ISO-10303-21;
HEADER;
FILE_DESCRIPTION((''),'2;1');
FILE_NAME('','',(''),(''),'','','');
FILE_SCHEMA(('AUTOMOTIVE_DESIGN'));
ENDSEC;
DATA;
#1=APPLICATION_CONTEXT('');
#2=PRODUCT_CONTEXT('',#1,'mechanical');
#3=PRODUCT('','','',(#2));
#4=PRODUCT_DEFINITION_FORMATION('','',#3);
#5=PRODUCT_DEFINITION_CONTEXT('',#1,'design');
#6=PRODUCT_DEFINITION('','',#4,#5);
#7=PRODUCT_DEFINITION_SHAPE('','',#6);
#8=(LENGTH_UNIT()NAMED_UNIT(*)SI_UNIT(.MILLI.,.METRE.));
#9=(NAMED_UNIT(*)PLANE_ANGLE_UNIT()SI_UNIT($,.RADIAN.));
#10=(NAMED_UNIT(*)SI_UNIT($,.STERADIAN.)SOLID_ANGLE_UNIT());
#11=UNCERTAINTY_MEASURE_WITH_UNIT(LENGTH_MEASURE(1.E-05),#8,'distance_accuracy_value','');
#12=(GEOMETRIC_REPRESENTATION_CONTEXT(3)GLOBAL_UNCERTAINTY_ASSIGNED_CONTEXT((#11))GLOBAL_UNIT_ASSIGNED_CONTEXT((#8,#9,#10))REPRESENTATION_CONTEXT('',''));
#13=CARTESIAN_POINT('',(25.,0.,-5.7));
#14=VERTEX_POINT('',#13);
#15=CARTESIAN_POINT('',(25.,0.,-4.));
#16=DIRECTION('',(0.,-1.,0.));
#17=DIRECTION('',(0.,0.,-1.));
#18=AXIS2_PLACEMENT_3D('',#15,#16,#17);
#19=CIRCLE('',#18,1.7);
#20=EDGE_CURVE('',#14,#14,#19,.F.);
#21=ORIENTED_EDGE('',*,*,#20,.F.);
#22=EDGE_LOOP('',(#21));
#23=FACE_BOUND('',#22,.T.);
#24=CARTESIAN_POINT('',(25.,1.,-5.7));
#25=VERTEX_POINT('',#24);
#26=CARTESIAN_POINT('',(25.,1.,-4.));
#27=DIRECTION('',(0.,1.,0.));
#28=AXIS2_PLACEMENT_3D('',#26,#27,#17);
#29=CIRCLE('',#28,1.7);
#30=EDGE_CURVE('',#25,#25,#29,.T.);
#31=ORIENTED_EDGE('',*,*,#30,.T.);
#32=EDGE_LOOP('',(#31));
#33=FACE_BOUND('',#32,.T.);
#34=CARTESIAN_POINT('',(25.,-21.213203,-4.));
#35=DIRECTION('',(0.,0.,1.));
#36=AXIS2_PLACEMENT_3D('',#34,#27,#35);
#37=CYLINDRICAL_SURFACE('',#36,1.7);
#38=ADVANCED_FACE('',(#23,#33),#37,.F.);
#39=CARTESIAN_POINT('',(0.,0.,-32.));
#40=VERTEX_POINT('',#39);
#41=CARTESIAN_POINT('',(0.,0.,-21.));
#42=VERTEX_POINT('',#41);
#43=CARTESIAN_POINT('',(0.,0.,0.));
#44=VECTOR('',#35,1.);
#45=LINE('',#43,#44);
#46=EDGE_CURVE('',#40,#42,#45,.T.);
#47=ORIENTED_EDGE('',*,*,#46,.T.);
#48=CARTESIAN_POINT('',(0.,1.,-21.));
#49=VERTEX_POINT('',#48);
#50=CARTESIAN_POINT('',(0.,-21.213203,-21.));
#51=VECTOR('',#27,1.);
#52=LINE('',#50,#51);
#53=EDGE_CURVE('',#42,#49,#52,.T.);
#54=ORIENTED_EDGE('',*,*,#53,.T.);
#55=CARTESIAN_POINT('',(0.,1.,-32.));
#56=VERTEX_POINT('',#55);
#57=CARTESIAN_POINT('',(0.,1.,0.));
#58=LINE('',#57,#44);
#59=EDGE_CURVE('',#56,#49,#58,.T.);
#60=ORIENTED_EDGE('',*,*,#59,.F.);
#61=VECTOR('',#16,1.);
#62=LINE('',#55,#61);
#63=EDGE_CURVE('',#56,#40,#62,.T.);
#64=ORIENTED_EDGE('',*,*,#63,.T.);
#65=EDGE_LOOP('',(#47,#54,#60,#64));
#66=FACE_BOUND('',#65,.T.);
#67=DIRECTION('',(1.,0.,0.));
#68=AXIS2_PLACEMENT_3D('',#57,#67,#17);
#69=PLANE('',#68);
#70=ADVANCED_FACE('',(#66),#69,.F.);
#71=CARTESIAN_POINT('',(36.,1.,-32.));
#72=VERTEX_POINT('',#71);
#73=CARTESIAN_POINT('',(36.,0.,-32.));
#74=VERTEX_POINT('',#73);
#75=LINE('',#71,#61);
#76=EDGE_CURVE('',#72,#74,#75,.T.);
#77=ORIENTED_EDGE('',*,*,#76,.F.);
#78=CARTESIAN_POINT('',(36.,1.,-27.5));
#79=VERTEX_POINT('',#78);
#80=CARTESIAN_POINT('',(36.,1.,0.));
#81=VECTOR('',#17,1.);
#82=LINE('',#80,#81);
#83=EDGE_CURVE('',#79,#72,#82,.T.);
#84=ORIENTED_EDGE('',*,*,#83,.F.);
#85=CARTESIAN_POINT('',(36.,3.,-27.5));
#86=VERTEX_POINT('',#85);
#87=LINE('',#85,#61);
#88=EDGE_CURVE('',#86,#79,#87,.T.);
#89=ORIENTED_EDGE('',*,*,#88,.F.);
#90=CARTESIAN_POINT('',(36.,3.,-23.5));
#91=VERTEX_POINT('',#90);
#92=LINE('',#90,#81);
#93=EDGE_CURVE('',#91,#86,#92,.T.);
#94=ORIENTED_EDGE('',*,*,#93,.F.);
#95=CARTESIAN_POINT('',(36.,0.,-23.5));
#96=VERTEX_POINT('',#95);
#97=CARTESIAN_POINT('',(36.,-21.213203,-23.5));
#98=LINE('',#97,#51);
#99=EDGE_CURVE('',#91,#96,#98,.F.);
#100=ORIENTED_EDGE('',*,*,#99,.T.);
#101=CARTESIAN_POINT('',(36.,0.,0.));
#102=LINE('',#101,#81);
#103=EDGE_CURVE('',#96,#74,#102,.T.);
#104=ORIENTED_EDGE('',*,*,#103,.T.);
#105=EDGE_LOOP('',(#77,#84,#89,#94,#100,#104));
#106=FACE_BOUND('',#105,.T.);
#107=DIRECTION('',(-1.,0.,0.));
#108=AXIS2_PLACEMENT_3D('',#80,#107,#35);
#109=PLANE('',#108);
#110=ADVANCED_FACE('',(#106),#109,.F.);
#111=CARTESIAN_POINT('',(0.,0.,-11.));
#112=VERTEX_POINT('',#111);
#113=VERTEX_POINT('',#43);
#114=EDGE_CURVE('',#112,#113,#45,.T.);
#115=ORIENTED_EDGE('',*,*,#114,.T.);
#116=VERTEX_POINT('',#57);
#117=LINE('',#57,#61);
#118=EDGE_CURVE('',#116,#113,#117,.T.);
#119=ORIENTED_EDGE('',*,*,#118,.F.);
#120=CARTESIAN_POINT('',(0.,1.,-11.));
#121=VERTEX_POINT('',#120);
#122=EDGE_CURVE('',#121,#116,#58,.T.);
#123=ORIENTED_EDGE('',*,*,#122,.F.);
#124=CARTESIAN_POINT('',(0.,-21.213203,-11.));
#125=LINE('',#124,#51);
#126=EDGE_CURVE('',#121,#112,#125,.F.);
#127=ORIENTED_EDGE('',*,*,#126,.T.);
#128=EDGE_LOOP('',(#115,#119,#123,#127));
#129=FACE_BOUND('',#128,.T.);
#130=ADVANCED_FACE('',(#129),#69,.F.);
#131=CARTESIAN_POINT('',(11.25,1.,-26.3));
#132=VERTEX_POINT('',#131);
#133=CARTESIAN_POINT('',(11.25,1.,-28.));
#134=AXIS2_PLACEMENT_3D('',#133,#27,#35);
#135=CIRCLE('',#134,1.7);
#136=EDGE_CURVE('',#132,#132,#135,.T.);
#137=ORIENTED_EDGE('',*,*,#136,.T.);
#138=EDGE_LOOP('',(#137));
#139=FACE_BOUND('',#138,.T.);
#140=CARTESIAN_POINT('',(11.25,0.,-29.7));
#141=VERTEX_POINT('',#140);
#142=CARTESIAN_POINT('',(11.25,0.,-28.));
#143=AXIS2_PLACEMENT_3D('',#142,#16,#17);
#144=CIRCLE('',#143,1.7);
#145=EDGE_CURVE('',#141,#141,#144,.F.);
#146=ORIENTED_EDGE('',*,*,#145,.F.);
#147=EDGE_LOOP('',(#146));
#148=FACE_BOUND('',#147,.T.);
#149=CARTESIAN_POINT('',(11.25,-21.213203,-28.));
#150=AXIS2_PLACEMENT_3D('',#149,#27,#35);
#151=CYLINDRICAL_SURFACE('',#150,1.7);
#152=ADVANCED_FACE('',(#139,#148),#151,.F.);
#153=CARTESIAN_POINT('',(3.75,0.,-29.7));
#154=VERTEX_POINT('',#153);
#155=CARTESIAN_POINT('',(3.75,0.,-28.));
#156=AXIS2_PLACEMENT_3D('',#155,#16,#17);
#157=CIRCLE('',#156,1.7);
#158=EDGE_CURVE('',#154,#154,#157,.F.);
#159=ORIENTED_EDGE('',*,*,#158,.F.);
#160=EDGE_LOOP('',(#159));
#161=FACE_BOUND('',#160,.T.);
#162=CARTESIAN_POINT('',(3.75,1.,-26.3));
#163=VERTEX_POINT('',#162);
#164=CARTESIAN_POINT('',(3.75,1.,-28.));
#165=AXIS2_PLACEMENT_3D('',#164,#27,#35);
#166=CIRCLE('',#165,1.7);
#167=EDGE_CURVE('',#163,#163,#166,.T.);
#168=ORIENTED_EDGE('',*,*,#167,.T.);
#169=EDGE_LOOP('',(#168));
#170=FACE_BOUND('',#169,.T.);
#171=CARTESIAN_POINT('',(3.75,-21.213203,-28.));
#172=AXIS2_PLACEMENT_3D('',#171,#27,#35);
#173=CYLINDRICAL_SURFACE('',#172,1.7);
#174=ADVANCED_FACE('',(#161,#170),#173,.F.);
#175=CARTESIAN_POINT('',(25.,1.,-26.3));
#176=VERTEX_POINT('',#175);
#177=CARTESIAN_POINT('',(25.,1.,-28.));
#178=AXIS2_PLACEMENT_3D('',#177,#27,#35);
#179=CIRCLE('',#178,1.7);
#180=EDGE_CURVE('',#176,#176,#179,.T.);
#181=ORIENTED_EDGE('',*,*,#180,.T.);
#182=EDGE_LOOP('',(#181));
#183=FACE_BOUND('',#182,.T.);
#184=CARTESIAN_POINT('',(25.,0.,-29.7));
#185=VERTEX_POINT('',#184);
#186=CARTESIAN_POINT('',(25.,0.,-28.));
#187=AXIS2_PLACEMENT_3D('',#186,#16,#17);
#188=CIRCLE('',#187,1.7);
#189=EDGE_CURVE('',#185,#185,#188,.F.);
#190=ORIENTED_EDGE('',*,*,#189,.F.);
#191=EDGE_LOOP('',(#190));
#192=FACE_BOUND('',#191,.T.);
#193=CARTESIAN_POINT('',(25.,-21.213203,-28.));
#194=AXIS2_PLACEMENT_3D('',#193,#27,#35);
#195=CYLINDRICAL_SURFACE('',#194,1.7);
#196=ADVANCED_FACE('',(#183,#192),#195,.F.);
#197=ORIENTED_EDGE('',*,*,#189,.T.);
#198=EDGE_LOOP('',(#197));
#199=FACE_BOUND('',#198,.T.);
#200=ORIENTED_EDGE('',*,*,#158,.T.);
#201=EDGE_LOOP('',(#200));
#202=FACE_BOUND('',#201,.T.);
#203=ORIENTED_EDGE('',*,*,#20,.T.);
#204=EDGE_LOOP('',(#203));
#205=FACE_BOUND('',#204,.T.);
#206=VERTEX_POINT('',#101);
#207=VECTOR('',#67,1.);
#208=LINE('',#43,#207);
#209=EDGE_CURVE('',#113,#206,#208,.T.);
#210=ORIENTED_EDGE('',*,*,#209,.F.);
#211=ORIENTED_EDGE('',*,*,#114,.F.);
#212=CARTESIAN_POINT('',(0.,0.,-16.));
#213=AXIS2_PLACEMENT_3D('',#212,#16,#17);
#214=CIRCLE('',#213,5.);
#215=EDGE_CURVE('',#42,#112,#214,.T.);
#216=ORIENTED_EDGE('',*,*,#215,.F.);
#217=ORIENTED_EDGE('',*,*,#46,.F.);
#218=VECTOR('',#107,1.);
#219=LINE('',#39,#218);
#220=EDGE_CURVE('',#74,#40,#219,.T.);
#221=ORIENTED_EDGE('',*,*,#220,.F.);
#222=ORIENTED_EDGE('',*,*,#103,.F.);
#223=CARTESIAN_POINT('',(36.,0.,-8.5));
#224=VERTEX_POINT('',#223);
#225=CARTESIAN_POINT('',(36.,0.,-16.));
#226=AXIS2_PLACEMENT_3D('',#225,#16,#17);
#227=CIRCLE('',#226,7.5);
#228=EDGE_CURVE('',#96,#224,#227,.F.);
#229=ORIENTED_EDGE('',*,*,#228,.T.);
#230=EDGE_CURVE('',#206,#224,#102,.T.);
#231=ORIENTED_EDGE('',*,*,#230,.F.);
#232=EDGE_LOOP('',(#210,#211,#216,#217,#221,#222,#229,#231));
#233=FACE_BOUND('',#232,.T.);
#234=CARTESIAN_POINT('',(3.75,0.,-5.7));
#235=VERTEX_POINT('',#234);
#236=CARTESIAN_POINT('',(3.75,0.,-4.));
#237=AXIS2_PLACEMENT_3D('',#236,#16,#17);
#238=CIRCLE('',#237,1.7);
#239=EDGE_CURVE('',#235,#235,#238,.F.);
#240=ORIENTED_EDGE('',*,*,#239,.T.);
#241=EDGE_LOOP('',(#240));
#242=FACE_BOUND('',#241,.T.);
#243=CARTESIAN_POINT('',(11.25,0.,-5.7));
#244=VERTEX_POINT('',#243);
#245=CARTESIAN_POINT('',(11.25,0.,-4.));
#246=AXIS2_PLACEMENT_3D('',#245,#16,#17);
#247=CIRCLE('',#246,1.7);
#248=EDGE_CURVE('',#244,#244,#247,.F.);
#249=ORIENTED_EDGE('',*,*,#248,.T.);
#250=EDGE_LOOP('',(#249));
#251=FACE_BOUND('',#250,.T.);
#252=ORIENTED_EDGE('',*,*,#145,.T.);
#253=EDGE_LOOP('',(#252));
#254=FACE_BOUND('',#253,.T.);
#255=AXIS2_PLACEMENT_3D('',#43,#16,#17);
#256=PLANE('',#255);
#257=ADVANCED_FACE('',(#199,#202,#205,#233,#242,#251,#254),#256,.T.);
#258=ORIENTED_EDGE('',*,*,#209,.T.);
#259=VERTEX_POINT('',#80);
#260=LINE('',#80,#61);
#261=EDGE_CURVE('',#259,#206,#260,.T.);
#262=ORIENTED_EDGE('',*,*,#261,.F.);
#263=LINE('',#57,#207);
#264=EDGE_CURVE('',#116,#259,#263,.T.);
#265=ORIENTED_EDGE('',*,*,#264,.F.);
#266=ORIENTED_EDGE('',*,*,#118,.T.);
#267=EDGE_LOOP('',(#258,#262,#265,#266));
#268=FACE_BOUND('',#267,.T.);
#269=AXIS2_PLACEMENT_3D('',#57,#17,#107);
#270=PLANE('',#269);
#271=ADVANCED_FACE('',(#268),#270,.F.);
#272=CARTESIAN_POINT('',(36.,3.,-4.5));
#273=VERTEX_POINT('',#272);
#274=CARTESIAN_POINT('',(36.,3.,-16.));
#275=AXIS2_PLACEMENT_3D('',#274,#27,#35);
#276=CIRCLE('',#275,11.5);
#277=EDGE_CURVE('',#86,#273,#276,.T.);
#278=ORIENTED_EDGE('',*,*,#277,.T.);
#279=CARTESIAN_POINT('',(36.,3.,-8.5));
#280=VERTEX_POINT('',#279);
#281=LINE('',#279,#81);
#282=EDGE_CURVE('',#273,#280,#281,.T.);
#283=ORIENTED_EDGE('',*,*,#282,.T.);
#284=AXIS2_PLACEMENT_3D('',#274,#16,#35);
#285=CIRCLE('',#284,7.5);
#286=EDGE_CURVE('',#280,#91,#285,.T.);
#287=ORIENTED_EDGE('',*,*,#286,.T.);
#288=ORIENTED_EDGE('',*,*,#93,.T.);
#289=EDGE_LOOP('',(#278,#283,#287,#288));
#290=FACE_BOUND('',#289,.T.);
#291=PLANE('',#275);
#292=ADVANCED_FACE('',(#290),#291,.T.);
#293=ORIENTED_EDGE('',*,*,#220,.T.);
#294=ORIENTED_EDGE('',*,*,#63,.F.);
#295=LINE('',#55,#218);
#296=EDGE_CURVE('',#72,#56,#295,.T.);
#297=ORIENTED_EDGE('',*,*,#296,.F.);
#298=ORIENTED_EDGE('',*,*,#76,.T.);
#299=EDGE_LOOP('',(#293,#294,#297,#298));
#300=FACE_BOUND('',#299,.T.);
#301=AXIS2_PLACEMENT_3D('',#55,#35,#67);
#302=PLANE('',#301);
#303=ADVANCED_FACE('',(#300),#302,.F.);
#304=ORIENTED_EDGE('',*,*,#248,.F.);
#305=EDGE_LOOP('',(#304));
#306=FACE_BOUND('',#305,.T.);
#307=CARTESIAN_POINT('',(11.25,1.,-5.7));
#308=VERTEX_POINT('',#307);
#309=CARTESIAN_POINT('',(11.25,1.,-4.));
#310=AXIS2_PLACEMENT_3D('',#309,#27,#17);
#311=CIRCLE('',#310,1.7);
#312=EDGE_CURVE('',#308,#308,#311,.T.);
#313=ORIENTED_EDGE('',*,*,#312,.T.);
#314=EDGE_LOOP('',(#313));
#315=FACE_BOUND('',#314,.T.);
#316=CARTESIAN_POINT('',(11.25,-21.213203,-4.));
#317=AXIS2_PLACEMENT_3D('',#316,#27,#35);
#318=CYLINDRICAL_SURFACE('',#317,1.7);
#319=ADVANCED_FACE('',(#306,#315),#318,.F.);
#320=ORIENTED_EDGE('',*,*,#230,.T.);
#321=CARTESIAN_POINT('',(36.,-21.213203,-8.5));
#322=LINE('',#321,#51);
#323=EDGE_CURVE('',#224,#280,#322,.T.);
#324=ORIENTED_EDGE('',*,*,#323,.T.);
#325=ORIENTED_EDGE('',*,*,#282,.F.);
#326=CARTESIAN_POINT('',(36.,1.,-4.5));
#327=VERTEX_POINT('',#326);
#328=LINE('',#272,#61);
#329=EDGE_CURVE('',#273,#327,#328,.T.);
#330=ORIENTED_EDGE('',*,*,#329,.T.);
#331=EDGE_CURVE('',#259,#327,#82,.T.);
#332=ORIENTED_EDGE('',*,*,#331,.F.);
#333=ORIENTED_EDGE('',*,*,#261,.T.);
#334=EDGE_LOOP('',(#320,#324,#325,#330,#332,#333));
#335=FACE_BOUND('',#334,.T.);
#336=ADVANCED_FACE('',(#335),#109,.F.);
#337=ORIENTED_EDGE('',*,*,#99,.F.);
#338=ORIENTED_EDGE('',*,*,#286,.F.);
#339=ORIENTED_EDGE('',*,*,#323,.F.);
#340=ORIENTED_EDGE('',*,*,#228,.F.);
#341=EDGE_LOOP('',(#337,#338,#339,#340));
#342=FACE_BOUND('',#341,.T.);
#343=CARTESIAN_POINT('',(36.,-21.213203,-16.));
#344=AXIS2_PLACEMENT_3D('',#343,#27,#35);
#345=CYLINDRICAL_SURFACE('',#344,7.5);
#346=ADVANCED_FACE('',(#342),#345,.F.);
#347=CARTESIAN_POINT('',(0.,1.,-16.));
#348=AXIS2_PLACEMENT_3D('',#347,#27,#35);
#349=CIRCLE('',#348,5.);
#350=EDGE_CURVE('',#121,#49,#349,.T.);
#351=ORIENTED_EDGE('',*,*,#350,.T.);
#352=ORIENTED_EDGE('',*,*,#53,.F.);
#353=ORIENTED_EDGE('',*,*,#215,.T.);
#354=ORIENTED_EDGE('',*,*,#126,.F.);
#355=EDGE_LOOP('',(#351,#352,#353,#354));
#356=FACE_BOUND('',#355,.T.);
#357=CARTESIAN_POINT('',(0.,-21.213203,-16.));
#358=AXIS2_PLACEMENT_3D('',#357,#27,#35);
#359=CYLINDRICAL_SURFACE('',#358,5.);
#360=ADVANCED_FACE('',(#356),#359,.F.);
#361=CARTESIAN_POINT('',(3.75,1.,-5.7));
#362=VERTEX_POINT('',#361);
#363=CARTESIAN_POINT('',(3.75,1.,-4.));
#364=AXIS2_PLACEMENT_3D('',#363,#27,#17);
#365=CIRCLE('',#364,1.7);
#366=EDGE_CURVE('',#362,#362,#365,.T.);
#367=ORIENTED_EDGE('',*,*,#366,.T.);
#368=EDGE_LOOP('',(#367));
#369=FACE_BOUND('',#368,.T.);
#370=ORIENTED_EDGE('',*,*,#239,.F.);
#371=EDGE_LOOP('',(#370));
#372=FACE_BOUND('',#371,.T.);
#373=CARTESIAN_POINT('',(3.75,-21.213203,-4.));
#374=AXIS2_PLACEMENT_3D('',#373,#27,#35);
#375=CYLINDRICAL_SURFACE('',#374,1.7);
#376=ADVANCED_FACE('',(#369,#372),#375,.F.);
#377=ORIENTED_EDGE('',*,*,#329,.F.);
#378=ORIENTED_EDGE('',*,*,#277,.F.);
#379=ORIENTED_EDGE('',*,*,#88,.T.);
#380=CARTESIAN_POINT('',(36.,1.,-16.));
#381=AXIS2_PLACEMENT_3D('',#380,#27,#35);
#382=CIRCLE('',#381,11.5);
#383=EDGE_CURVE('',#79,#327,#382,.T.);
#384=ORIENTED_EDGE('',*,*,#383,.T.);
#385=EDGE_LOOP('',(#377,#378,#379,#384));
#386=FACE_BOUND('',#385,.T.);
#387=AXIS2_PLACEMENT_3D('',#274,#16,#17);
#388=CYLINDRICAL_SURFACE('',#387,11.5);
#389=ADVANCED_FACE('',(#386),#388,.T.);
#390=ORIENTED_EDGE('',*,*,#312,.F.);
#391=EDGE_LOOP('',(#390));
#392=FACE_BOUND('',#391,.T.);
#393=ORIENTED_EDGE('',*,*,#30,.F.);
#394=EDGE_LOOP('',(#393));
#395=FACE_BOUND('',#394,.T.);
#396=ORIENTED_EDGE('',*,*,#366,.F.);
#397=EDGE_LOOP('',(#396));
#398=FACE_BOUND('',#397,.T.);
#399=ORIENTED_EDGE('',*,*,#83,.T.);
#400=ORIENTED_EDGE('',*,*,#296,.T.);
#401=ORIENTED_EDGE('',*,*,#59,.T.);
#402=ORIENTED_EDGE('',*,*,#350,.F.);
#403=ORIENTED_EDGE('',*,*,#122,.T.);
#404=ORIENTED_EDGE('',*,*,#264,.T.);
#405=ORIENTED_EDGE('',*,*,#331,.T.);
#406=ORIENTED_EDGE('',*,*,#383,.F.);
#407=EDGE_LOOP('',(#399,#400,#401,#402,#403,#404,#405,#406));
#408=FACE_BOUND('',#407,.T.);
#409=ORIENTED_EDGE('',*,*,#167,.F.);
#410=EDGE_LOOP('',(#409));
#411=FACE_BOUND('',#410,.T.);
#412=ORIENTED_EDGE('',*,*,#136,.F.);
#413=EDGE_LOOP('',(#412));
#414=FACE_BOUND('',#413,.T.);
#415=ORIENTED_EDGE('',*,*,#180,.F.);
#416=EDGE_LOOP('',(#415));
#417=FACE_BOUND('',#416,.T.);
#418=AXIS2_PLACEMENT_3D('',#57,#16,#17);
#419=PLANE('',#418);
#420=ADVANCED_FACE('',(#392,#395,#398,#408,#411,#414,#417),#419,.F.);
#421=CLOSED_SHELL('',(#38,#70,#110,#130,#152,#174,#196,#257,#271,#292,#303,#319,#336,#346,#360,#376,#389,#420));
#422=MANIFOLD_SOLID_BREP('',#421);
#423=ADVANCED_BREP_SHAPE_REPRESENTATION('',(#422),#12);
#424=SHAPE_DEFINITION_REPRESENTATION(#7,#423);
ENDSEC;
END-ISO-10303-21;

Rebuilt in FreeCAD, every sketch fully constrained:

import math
import FreeCAD as App
import Part
import Sketcher


def add_polygon(sketch, points):
    """Adds a closed chain of lines whose ends are joined by coincident constraints."""
    first, n = sketch.GeometryCount, len(points)
    for a, b in zip(points, points[1:] + points[:1]):
        sketch.addGeometry(Part.LineSegment(App.Vector(*a, 0), App.Vector(*b, 0)), False)
    for i in range(n):
        sketch.addConstraint(Sketcher.Constraint("Coincident", first + i, 2, first + (i + 1) % n, 1))

doc = App.newDocument("Part")
body = doc.addObject("PartDesign::Body", "Body")

# Sketch on XZ plane
sketch1 = body.newObject("Sketcher::SketchObject", "Sketch")
sketch1.AttachmentSupport = (doc.getObject("XZ_Plane"), [""])
sketch1.MapMode = "FlatFace"
add_polygon(sketch1, [(0, -32), (0, 0), (36, 0), (36, -32)])  # lines 0-3
sketch1.addConstraint([
    Sketcher.Constraint("Vertical", 0),
    Sketcher.Constraint("Horizontal", 1),
    Sketcher.Constraint("Vertical", 2),
    Sketcher.Constraint("Horizontal", 3),
    Sketcher.Constraint("Coincident", 0, 2, -1, 1),
    Sketcher.Constraint("DistanceX", 1, 1, 1, 2, 36.0),
    Sketcher.Constraint("DistanceY", 0, 1, 0, 2, 32.0),
])
pad1 = body.newObject("PartDesign::Pad", "Pad")
pad1.Profile = sketch1
pad1.Length = 1
pad1.Reversed = True

# Sketch on XZ plane
sketch2 = body.newObject("Sketcher::SketchObject", "Sketch001")
sketch2.AttachmentSupport = (doc.getObject("XZ_Plane"), [""])
sketch2.MapMode = "FlatFace"
sketch2.AttachmentOffset = App.Placement(App.Vector(0, 0, -1), App.Rotation())
sketch2.addGeometry([
    Part.Circle(App.Vector(3.75, -28, 0), App.Vector(0, 0, 1), 1.7),  # 0
    Part.Circle(App.Vector(11.25, -28, 0), App.Vector(0, 0, 1), 1.7),  # 1
    Part.Circle(App.Vector(25, -28, 0), App.Vector(0, 0, 1), 1.7),  # 2
    Part.Circle(App.Vector(36, -16, 0), App.Vector(0, 0, 1), 7.5),  # 3
    Part.Circle(App.Vector(25, -4, 0), App.Vector(0, 0, 1), 1.7),  # 4
    Part.Circle(App.Vector(11.25, -4, 0), App.Vector(0, 0, 1), 1.7),  # 5
    Part.Circle(App.Vector(3.75, -4, 0), App.Vector(0, 0, 1), 1.7),  # 6
    Part.Circle(App.Vector(0, -16, 0), App.Vector(0, 0, 1), 5),  # 7
], False)
sketch2.addConstraint([
    Sketcher.Constraint("Equal", 0, 1),
    Sketcher.Constraint("Equal", 1, 2),
    Sketcher.Constraint("Equal", 2, 4),
    Sketcher.Constraint("Equal", 4, 5),
    Sketcher.Constraint("Equal", 5, 6),
    Sketcher.Constraint("PointOnObject", 7, 3, -2),
    Sketcher.Constraint("Horizontal", 0, 3, 1, 3),
    Sketcher.Constraint("Horizontal", 1, 3, 2, 3),
    Sketcher.Constraint("Horizontal", 4, 3, 5, 3),
    Sketcher.Constraint("Horizontal", 5, 3, 6, 3),
    Sketcher.Constraint("Horizontal", 3, 3, 7, 3),
    Sketcher.Constraint("Vertical", 2, 3, 4, 3),
    Sketcher.Constraint("Vertical", 1, 3, 5, 3),
    Sketcher.Constraint("Vertical", 0, 3, 6, 3),
    Sketcher.Constraint("Diameter", 3, 15.0),
    Sketcher.Constraint("Diameter", 7, 10.0),
    Sketcher.Constraint("Diameter", 0, 3.4),
    Sketcher.Constraint("DistanceY", 0, 3, -1, 1, 28.0),
    Sketcher.Constraint("DistanceX", -1, 1, 2, 3, 25.0),
    Sketcher.Constraint("DistanceX", -1, 1, 3, 3, 36.0),
    Sketcher.Constraint("DistanceY", 3, 3, -1, 1, 16.0),
    Sketcher.Constraint("DistanceY", 4, 3, -1, 1, 4.0),
    Sketcher.Constraint("DistanceX", 0, 3, 1, 3, 7.5),
    Sketcher.Constraint("DistanceX", -1, 1, 0, 3, 3.75),
])
pocket1 = body.newObject("PartDesign::Pocket", "Pocket")
pocket1.Profile = sketch2
pocket1.Length = 1
pocket1.Reversed = True

# Sketch on XZ plane
sketch3 = body.newObject("Sketcher::SketchObject", "Sketch002")
sketch3.AttachmentSupport = (doc.getObject("XZ_Plane"), [""])
sketch3.MapMode = "FlatFace"
sketch3.AttachmentOffset = App.Placement(App.Vector(0, 0, -3), App.Rotation())
sketch3.addGeometry([
    Part.LineSegment(App.Vector(36, -23.5, 0), App.Vector(36, -27.5, 0)),
    Part.ArcOfCircle(Part.Circle(App.Vector(36, -16, 0), App.Vector(0, 0, 1), 11.5), math.radians(90), math.radians(270)),
    Part.LineSegment(App.Vector(36, -4.5, 0), App.Vector(36, -8.5, 0)),
    Part.ArcOfCircle(Part.Circle(App.Vector(36, -16, 0), App.Vector(0, 0, 1), 7.5), math.radians(90), math.radians(270)),
], False)
sketch3.addConstraint([
    Sketcher.Constraint("Coincident", 0, 2, 1, 2),
    Sketcher.Constraint("Coincident", 1, 1, 2, 1),
    Sketcher.Constraint("Coincident", 2, 2, 3, 1),
    Sketcher.Constraint("Coincident", 3, 2, 0, 1),
    Sketcher.Constraint("Vertical", 0),
    Sketcher.Constraint("Vertical", 2),
    Sketcher.Constraint("Coincident", 3, 3, 1, 3),
    Sketcher.Constraint("Vertical", 3, 3, 0, 2),
    Sketcher.Constraint("Vertical", 0, 2, 1, 1),
    Sketcher.Constraint("Radius", 1, 11.5),
    Sketcher.Constraint("Radius", 3, 7.5),
    Sketcher.Constraint("DistanceX", -1, 1, 1, 3, 36.0),
    Sketcher.Constraint("DistanceY", 1, 3, -1, 1, 16.0),
])
pad2 = body.newObject("PartDesign::Pad", "Pad001")
pad2.Profile = sketch3
pad2.Length = 2

doc.recompute()
